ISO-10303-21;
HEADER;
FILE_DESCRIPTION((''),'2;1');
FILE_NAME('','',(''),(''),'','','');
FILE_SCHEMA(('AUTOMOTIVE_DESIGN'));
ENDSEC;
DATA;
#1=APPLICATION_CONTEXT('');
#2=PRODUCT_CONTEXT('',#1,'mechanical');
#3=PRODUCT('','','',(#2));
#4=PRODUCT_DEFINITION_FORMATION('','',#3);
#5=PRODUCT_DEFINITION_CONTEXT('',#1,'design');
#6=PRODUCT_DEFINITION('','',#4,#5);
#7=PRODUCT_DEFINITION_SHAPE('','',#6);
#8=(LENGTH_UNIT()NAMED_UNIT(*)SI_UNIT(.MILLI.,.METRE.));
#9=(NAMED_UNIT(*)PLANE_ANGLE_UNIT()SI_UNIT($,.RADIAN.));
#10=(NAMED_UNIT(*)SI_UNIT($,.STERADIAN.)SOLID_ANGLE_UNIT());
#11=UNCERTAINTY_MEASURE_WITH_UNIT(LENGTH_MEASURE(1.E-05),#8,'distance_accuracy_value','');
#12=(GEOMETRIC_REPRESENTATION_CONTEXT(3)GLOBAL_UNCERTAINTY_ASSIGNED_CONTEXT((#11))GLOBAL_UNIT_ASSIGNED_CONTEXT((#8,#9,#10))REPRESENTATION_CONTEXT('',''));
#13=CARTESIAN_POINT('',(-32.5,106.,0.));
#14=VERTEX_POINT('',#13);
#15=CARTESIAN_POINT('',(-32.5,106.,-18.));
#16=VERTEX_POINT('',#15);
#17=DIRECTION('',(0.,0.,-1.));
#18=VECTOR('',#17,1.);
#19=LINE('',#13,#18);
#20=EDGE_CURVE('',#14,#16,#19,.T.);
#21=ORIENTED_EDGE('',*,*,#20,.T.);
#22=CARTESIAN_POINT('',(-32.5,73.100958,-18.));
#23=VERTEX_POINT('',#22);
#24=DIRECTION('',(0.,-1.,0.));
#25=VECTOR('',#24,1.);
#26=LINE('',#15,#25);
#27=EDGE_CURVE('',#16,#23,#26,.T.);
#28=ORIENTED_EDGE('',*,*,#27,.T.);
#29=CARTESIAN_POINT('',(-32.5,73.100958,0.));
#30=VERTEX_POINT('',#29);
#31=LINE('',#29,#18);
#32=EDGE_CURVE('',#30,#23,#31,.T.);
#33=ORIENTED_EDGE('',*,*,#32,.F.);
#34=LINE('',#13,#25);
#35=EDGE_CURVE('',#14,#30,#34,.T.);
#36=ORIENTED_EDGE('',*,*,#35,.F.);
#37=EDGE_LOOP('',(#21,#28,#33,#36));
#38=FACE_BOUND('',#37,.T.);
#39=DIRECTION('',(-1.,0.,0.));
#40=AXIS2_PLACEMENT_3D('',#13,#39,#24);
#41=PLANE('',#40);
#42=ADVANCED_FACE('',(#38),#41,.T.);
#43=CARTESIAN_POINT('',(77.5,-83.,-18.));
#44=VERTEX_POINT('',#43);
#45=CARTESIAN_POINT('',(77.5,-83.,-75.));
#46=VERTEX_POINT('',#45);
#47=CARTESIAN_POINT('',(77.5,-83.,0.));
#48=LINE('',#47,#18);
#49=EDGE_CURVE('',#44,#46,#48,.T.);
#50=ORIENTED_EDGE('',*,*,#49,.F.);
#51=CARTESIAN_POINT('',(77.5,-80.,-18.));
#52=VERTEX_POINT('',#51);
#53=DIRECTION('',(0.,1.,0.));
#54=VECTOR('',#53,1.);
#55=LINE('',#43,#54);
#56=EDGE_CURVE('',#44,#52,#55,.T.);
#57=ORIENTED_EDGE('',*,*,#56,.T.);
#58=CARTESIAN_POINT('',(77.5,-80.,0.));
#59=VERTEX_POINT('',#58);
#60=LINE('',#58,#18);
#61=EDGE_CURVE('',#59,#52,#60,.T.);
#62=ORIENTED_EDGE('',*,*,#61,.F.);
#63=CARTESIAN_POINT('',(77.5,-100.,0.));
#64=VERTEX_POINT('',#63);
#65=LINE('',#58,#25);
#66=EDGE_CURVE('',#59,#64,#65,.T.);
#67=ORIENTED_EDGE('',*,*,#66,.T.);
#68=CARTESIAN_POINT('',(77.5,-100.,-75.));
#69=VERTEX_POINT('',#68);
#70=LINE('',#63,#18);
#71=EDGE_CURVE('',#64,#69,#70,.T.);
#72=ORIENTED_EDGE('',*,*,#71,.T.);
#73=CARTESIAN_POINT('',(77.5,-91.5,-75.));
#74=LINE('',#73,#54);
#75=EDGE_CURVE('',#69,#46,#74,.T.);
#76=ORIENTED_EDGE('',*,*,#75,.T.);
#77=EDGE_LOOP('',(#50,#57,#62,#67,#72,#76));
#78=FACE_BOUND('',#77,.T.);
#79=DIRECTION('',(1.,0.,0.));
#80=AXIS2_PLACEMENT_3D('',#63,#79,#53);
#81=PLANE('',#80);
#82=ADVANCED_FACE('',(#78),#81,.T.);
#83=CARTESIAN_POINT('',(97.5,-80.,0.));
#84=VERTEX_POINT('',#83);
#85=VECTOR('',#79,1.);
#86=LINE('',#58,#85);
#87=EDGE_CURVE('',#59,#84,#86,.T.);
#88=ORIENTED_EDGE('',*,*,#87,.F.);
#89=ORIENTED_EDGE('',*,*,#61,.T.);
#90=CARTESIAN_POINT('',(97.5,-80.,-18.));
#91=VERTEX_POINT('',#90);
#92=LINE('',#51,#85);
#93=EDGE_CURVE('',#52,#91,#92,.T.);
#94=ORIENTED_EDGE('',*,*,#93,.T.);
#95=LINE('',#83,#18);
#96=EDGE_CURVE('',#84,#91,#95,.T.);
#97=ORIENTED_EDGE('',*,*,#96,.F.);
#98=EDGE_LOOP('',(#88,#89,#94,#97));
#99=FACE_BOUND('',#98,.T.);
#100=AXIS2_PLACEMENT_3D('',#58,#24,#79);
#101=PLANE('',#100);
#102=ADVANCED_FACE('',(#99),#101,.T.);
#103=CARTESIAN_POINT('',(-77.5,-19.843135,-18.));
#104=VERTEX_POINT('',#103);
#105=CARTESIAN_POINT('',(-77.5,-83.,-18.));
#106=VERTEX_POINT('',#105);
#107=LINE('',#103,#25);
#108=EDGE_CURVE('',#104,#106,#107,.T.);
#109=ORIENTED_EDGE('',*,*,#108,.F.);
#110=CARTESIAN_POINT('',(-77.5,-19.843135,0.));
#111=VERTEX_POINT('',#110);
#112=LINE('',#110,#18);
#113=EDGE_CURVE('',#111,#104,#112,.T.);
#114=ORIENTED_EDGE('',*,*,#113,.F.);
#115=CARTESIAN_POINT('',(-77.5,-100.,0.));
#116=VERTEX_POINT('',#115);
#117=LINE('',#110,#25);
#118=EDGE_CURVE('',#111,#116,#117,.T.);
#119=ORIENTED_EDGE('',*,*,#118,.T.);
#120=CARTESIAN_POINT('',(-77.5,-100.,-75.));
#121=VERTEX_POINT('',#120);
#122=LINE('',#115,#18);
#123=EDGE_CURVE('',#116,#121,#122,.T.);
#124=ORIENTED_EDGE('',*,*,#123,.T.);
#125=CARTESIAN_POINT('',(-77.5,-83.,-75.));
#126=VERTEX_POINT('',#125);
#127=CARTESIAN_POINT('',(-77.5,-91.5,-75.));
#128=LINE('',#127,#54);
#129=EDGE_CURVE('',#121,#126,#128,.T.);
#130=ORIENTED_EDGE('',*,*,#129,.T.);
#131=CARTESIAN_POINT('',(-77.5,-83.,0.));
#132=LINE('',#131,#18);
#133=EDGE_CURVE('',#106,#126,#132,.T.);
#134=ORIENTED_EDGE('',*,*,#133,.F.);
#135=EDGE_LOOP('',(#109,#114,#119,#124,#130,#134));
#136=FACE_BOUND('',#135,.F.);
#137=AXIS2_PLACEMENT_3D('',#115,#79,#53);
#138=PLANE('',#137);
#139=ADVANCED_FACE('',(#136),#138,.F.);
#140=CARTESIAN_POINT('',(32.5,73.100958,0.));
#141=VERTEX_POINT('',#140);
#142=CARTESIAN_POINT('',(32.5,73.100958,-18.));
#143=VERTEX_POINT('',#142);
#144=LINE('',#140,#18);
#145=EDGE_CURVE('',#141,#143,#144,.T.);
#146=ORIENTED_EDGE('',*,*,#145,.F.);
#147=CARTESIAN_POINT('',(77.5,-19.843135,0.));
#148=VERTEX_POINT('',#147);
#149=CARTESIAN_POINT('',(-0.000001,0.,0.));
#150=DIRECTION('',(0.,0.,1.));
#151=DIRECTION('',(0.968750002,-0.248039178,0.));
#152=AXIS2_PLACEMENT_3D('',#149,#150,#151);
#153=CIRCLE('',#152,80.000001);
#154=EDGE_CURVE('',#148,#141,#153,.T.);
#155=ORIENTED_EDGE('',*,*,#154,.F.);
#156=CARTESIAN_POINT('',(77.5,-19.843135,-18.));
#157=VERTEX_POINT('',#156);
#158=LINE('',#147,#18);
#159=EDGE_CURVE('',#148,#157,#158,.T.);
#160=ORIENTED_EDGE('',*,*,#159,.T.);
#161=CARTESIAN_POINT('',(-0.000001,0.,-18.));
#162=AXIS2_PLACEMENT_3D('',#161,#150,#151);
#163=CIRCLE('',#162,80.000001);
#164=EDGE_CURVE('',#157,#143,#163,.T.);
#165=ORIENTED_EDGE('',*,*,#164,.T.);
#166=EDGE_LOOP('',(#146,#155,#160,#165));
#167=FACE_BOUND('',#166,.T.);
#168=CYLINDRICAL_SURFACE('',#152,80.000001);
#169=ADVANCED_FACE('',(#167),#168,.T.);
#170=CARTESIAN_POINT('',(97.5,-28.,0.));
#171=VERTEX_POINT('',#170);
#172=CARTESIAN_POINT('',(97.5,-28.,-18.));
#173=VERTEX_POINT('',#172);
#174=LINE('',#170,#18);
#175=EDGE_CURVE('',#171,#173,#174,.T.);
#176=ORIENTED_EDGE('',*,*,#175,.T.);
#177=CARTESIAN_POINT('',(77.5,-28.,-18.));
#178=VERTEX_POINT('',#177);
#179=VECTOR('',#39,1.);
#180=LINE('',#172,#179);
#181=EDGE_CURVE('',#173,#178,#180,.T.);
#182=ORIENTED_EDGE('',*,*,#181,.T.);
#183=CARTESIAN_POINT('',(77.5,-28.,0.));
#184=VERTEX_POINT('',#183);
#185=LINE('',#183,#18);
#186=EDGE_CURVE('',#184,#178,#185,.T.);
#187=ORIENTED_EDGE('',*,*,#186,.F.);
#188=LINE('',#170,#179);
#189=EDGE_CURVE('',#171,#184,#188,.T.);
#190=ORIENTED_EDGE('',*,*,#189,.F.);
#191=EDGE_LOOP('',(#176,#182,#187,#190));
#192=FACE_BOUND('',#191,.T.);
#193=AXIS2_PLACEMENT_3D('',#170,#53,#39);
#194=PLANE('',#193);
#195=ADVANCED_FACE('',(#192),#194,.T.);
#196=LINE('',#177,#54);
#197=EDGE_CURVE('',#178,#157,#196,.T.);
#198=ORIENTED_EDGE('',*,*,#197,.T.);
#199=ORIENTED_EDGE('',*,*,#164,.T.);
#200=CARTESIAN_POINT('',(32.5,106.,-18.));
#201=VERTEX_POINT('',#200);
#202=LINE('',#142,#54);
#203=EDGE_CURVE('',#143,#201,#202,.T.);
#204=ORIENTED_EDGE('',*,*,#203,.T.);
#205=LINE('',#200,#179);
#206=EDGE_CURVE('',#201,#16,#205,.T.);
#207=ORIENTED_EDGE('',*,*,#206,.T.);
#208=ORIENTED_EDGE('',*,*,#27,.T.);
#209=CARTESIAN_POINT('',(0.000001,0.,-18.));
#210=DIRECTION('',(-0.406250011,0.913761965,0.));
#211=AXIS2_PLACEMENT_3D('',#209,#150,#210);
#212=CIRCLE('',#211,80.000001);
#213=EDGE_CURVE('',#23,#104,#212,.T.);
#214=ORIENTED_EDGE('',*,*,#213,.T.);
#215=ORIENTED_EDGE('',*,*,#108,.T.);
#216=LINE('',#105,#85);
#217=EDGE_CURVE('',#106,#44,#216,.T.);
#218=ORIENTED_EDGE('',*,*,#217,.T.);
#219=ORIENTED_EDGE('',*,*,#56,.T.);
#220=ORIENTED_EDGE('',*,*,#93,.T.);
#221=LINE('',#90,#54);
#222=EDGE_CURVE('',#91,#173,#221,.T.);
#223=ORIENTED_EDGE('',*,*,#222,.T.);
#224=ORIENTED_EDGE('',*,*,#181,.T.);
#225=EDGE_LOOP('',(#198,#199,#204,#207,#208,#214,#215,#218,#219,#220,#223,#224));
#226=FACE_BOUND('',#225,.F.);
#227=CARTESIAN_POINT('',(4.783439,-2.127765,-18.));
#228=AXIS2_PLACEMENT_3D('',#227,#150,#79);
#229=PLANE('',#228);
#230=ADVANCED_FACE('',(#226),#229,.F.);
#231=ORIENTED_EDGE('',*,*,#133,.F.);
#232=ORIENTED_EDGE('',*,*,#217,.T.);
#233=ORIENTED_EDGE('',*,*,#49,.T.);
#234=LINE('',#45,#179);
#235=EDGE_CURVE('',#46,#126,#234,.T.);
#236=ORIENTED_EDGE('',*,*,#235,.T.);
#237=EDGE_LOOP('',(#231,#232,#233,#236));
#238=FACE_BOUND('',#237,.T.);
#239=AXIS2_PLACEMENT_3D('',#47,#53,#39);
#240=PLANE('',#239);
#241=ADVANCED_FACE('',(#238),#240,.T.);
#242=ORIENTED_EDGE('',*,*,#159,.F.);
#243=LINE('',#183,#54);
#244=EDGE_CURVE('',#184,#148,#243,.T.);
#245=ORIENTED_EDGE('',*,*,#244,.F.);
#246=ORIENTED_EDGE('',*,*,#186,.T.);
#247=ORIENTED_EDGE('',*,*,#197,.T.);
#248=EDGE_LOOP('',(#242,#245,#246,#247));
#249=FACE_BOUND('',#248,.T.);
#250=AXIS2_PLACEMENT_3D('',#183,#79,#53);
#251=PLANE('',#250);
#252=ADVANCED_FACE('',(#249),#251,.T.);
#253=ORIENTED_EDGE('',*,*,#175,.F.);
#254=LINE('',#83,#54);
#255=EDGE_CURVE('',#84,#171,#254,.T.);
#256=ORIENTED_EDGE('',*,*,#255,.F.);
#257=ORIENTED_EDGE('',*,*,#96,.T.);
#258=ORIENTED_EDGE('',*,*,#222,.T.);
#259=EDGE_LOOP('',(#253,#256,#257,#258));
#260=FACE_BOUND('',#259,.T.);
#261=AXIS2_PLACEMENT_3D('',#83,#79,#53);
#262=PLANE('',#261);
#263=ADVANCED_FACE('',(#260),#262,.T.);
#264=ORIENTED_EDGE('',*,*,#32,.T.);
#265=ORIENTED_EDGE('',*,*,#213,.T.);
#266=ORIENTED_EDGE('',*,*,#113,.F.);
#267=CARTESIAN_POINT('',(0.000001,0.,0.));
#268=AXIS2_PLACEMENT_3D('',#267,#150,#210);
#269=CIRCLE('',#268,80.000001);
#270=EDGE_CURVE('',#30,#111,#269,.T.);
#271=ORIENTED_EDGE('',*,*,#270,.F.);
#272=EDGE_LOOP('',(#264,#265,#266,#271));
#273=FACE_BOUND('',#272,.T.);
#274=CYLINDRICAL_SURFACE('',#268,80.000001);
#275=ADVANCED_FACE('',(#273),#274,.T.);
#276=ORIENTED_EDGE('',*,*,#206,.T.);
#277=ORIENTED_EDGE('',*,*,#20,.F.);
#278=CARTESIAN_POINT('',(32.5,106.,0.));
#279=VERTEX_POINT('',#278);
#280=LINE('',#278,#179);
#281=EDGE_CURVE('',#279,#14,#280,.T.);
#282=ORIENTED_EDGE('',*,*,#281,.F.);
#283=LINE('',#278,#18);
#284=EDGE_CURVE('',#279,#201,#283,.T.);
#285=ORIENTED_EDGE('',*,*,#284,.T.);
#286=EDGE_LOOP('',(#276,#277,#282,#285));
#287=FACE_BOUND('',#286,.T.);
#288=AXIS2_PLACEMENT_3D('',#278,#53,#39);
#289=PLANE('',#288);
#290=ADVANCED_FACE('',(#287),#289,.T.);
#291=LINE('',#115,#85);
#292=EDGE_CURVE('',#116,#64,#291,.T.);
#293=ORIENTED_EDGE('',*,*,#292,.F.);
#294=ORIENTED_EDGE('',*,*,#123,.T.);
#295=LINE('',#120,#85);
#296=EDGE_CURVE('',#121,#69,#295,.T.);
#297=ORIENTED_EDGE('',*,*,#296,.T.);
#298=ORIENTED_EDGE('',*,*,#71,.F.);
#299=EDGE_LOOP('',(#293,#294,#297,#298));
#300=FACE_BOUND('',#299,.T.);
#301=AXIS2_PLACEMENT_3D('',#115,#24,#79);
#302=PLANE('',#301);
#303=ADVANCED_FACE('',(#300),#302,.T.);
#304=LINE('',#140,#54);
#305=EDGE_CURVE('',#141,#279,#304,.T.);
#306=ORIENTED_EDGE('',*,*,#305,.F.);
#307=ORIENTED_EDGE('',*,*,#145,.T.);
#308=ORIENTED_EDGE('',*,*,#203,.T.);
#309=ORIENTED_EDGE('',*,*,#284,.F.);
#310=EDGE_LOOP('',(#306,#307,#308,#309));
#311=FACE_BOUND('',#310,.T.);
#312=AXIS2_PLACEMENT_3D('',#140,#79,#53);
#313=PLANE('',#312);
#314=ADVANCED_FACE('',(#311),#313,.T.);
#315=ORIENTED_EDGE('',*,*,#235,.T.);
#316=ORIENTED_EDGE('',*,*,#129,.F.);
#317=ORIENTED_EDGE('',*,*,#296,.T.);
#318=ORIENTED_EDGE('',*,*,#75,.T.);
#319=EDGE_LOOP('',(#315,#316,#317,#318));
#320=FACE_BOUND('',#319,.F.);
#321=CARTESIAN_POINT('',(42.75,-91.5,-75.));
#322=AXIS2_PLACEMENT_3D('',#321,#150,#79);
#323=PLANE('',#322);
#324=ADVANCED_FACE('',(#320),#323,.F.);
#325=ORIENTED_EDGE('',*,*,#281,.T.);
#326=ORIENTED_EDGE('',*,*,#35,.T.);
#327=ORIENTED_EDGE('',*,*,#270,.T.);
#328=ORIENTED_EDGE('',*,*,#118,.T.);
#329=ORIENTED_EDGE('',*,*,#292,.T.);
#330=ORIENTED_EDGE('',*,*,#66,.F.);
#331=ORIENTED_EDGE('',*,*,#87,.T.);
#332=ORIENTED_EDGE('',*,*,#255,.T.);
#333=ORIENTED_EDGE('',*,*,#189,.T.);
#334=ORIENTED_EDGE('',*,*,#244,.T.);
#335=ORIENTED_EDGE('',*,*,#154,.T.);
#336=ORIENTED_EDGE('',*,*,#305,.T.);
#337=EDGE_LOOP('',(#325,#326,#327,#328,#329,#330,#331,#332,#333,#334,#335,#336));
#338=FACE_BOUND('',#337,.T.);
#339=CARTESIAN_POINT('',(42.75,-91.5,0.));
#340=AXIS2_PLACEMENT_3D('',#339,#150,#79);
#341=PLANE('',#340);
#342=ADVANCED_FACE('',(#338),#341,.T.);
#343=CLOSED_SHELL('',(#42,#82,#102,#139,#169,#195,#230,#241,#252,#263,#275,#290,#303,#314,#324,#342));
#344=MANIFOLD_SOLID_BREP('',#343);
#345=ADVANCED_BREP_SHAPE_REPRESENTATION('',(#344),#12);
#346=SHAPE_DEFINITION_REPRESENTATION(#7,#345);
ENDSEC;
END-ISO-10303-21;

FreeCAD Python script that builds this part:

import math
import FreeCAD as App
import Part
import Sketcher
from FreeCAD import Vector

doc = App.newDocument("Part")
body = doc.addObject("PartDesign::Body", "Body")

sketch1 = body.newObject("Sketcher::SketchObject", "Sketch")
sketch1.AttachmentSupport = (doc.getObject("XY_Plane"), [""])
sketch1.MapMode = "FlatFace"
sketch1.addGeometry([
    Part.LineSegment(Vector(-77.5, -19.8, 0), Vector(-77.5, -83, 0)),
    Part.LineSegment(Vector(-77.5, -83, 0), Vector(77.5, -83, 0)),
    Part.LineSegment(Vector(77.5, -83, 0), Vector(77.5, -80, 0)),
    Part.LineSegment(Vector(77.5, -80, 0), Vector(97.5, -80, 0)),
    Part.LineSegment(Vector(97.5, -80, 0), Vector(97.5, -28, 0)),
    Part.LineSegment(Vector(97.5, -28, 0), Vector(77.5, -28, 0)),
    Part.LineSegment(Vector(77.5, -28, 0), Vector(77.5, -19.8, 0)),
    Part.ArcOfCircle(Part.Circle(Vector(0, 0, 0), Vector(0, 0, 1), 80), math.radians(-14), math.radians(66)),
    Part.LineSegment(Vector(32.5, 73.1, 0), Vector(32.5, 106, 0)),
    Part.LineSegment(Vector(32.5, 106, 0), Vector(-32.5, 106, 0)),
    Part.LineSegment(Vector(-32.5, 106, 0), Vector(-32.5, 73.1, 0)),
    Part.ArcOfCircle(Part.Circle(Vector(0, 0, 0), Vector(0, 0, 1), 80), math.radians(114), math.radians(194)),
], False)
sketch1.addConstraint([
    Sketcher.Constraint("Coincident", 0, 2, 1, 1),
    Sketcher.Constraint("Coincident", 1, 2, 2, 1),
    Sketcher.Constraint("Coincident", 2, 2, 3, 1),
    Sketcher.Constraint("Coincident", 3, 2, 4, 1),
    Sketcher.Constraint("Coincident", 4, 2, 5, 1),
    Sketcher.Constraint("Coincident", 5, 2, 6, 1),
    Sketcher.Constraint("Coincident", 6, 2, 7, 1),
    Sketcher.Constraint("Coincident", 7, 2, 8, 1),
    Sketcher.Constraint("Coincident", 8, 2, 9, 1),
    Sketcher.Constraint("Coincident", 9, 2, 10, 1),
    Sketcher.Constraint("Coincident", 10, 2, 11, 1),
    Sketcher.Constraint("Coincident", 11, 2, 0, 1),
    Sketcher.Constraint("Vertical", 0),
    Sketcher.Constraint("Horizontal", 1),
    Sketcher.Constraint("Vertical", 2),
    Sketcher.Constraint("Horizontal", 3),
    Sketcher.Constraint("Vertical", 4),
    Sketcher.Constraint("Horizontal", 5),
    Sketcher.Constraint("Vertical", 6),
    Sketcher.Constraint("Vertical", 8),
    Sketcher.Constraint("Horizontal", 9),
    Sketcher.Constraint("Vertical", 10),
    Sketcher.Constraint("Coincident", 7, 3, -1, 1),
    Sketcher.Constraint("Coincident", 11, 3, -1, 1),
    Sketcher.Constraint("Equal", 7, 11),
    Sketcher.Constraint("Horizontal", 7, 2, 10, 2),
    Sketcher.Constraint("Horizontal", 6, 2, 11, 2),
    Sketcher.Constraint("Vertical", 2, 2, 5, 2),
    Sketcher.Constraint("Radius", 7, 80.000001),
    Sketcher.Constraint("DistanceX", 1, 1, 1, 2, 155.0),
    Sketcher.Constraint("DistanceX", 3, 1, 3, 2, 20.0),
    Sketcher.Constraint("DistanceX", 9, 2, 9, 1, 65.0),
    Sketcher.Constraint("DistanceY", 2, 1, 2, 2, 3.0),
    Sketcher.Constraint("DistanceY", 4, 1, 4, 2, 52.0),
    Sketcher.Constraint("DistanceY", 0, 2, -1, 1, 83.0),
    Sketcher.Constraint("DistanceY", -1, 1, 8, 2, 106.0),
])
pad1 = body.newObject("PartDesign::Pad", "Pad")
pad1.Profile = sketch1
pad1.Length = 18
pad1.Reversed = True

sketch2 = body.newObject("Sketcher::SketchObject", "Sketch001")
sketch2.AttachmentSupport = (doc.getObject("XY_Plane"), [""])
sketch2.MapMode = "FlatFace"
sketch2.addGeometry([
    Part.LineSegment(Vector(78, -100, 0), Vector(78, -83, 0)),
    Part.LineSegment(Vector(78, -83, 0), Vector(-78, -83, 0)),
    Part.LineSegment(Vector(-78, -83, 0), Vector(-78, -100, 0)),
    Part.LineSegment(Vector(-78, -100, 0), Vector(78, -100, 0)),
], False)
sketch2.addConstraint([
    Sketcher.Constraint("Coincident", 0, 2, 1, 1),
    Sketcher.Constraint("Coincident", 1, 2, 2, 1),
    Sketcher.Constraint("Coincident", 2, 2, 3, 1),
    Sketcher.Constraint("Coincident", 3, 2, 0, 1),
    Sketcher.Constraint("Vertical", 0),
    Sketcher.Constraint("Horizontal", 1),
    Sketcher.Constraint("Vertical", 2),
    Sketcher.Constraint("Horizontal", 3),
    Sketcher.Constraint("DistanceX", 1, 2, 1, 1, 155.0),
    Sketcher.Constraint("DistanceY", 0, 1, 0, 2, 17.0),
    Sketcher.Constraint("DistanceY", 0, 2, -1, 1, 83.0),
    Sketcher.Constraint("DistanceX", -1, 1, 0, 2, 77.5),
])
pad2 = body.newObject("PartDesign::Pad", "Pad001")
pad2.Profile = sketch2
pad2.Length = 75
pad2.Reversed = True

doc.recompute()
